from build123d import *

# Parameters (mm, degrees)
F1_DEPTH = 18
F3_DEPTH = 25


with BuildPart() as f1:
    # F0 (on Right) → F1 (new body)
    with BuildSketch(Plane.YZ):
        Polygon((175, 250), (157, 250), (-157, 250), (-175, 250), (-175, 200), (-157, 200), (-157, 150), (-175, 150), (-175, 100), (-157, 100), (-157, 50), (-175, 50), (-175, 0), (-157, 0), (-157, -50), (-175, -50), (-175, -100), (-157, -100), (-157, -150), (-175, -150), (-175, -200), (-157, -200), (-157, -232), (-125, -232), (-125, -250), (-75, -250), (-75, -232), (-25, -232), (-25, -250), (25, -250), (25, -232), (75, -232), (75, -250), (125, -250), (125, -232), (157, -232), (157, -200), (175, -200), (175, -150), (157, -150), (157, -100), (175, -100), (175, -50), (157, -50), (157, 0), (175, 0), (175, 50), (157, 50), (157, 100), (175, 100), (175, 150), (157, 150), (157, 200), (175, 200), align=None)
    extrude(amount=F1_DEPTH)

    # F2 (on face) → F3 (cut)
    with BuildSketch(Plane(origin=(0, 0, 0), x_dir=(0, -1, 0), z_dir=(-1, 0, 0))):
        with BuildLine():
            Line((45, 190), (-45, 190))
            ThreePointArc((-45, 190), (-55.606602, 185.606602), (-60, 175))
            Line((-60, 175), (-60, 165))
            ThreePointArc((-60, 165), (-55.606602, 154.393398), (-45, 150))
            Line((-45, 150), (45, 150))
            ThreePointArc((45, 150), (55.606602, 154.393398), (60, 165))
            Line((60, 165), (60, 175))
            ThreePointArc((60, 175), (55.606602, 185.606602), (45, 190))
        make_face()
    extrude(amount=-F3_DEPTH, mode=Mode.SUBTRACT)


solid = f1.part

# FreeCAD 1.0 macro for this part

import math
import FreeCAD as App
import Part
import Sketcher

V = App.Vector


def add_polygon(sketch, points):
    """Adds a closed chain of lines whose ends are joined by coincident constraints."""
    first, n = sketch.GeometryCount, len(points)
    for a, b in zip(points, points[1:] + points[:1]):
        sketch.addGeometry(Part.LineSegment(App.Vector(*a, 0), App.Vector(*b, 0)), False)
    for i in range(n):
        sketch.addConstraint(Sketcher.Constraint("Coincident", first + i, 2, first + (i + 1) % n, 1))

doc = App.newDocument("Part")
body = doc.addObject("PartDesign::Body", "Body")

sketch1 = body.newObject("Sketcher::SketchObject", "Sketch")
sketch1.AttachmentSupport = (doc.getObject("YZ_Plane"), [""])
sketch1.MapMode = "FlatFace"
add_polygon(sketch1, [(175, 250), (-175, 250), (-175, 200), (-157, 200), (-157, 150), (-175, 150), (-175, 100), (-157, 100), (-157, 50), (-175, 50), (-175, 0), (-157, 0), (-157, -50), (-175, -50), (-175, -100), (-157, -100), (-157, -150), (-175, -150), (-175, -200), (-157, -200), (-157, -232), (-125, -232), (-125, -250), (-75, -250), (-75, -232), (-25, -232), (-25, -250), (25, -250), (25, -232), (75, -232), (75, -250), (125, -250), (125, -232), (157, -232), (157, -200), (175, -200), (175, -150), (157, -150), (157, -100), (175, -100), (175, -50), (157, -50), (157, 0), (175, 0), (175, 50), (157, 50), (157, 100), (175, 100), (175, 150), (157, 150), (157, 200), (175, 200)])
sketch1.addConstraint([
    Sketcher.Constraint("Horizontal", 0),
    Sketcher.Constraint("Vertical", 1),
    Sketcher.Constraint("Horizontal", 2),
    Sketcher.Constraint("Vertical", 3),
    Sketcher.Constraint("Horizontal", 4),
    Sketcher.Constraint("Vertical", 5),
    Sketcher.Constraint("Horizontal", 6),
    Sketcher.Constraint("Vertical", 7),
    Sketcher.Constraint("Horizontal", 8),
    Sketcher.Constraint("Vertical", 9),
    Sketcher.Constraint("Horizontal", 10),
    Sketcher.Constraint("Vertical", 11),
    Sketcher.Constraint("Horizontal", 12),
    Sketcher.Constraint("Vertical", 13),
    Sketcher.Constraint("Horizontal", 14),
    Sketcher.Constraint("Vertical", 15),
    Sketcher.Constraint("Horizontal", 16),
    Sketcher.Constraint("Vertical", 17),
    Sketcher.Constraint("Horizontal", 18),
    Sketcher.Constraint("Vertical", 19),
    Sketcher.Constraint("Horizontal", 20),
    Sketcher.Constraint("Vertical", 21),
    Sketcher.Constraint("Horizontal", 22),
    Sketcher.Constraint("Vertical", 23),
    Sketcher.Constraint("Horizontal", 24),
    Sketcher.Constraint("Vertical", 25),
    Sketcher.Constraint("Horizontal", 26),
    Sketcher.Constraint("Vertical", 27),
    Sketcher.Constraint("Horizontal", 28),
    Sketcher.Constraint("Vertical", 29),
    Sketcher.Constraint("Horizontal", 30),
    Sketcher.Constraint("Vertical", 31),
    Sketcher.Constraint("Horizontal", 32),
    Sketcher.Constraint("Vertical", 33),
    Sketcher.Constraint("Horizontal", 34),
    Sketcher.Constraint("Vertical", 35),
    Sketcher.Constraint("Horizontal", 36),
    Sketcher.Constraint("Vertical", 37),
    Sketcher.Constraint("Horizontal", 38),
    Sketcher.Constraint("Vertical", 39),
    Sketcher.Constraint("Horizontal", 40),
    Sketcher.Constraint("Vertical", 41),
    Sketcher.Constraint("Horizontal", 42),
    Sketcher.Constraint("Vertical", 43),
    Sketcher.Constraint("Horizontal", 44),
    Sketcher.Constraint("Vertical", 45),
    Sketcher.Constraint("Horizontal", 46),
    Sketcher.Constraint("Vertical", 47),
    Sketcher.Constraint("Horizontal", 48),
    Sketcher.Constraint("Vertical", 49),
    Sketcher.Constraint("Horizontal", 50),
    Sketcher.Constraint("Vertical", 51),
    Sketcher.Constraint("Symmetric", 2, 2, 33, 2, -1, 1),
    Sketcher.Constraint("Symmetric", 4, 2, 35, 2, -1, 1),
    Sketcher.Constraint("Symmetric", 6, 2, 37, 2, -1, 1),
    Sketcher.Constraint("Symmetric", 8, 2, 39, 2, -1, 1),
    Sketcher.Constraint("Symmetric", 10, 2, 41, 2, -1, 1),
    Sketcher.Constraint("Symmetric", 12, 2, 43, 2, -1, 1),
    Sketcher.Constraint("Symmetric", 14, 2, 45, 2, -1, 1),
    Sketcher.Constraint("Symmetric", 16, 2, 47, 2, -1, 1),
    Sketcher.Constraint("Symmetric", 18, 2, 49, 2, -1, 1),
    Sketcher.Constraint("Symmetric", 24, 2, 27, 2, -2),
    Sketcher.Constraint("Symmetric", 22, 2, 29, 2, -2),
    Sketcher.Constraint("Symmetric", 20, 2, 31, 2, -2),
    Sketcher.Constraint("Symmetric", 18, 2, 33, 2, -2),
    Sketcher.Constraint("Symmetric", 16, 2, 35, 2, -2),
    Sketcher.Constraint("Symmetric", 14, 2, 37, 2, -2),
    Sketcher.Constraint("Symmetric", 12, 2, 39, 2, -2),
    Sketcher.Constraint("PointOnObject", 9, 2, -1),
    Sketcher.Constraint("Horizontal", 20, 2, 23, 2),
    Sketcher.Constraint("Horizontal", 22, 2, 25, 2),
    Sketcher.Constraint("Vertical", 1, 2, 4, 2),
    Sketcher.Constraint("Vertical", 3, 2, 6, 2),
    Sketcher.Constraint("Vertical", 5, 2, 8, 2),
    Sketcher.Constraint("Vertical", 7, 2, 10, 2),
    Sketcher.Constraint("Vertical", 47, 2, 50, 2),
    Sketcher.Constraint("Equal", 22, 24),
    Sketcher.Constraint("Equal", 24, 26),
    Sketcher.Constraint("Equal", 30, 1),
    Sketcher.Constraint("Equal", 1, 3),
    Sketcher.Constraint("Equal", 3, 5),
    Sketcher.Constraint("Equal", 5, 7),
    Sketcher.Constraint("Equal", 7, 9),
    Sketcher.Constraint("Equal", 32, 19),
    Sketcher.Constraint("Equal", 50, 21),
    Sketcher.Constraint("DistanceX", 0, 2, 0, 1, 350.0),
    Sketcher.Constraint("DistanceX", 2, 1, 2, 2, 18.0),
    Sketcher.Constraint("DistanceX", 20, 1, 20, 2, 32.0),
])
pad1 = body.newObject("PartDesign::Pad", "Pad")
pad1.Profile = sketch1
pad1.Length = 18

sketch2 = body.newObject("Sketcher::SketchObject", "Sketch001")
sketch2.AttachmentSupport = (doc.getObject("YZ_Plane"), [""])
sketch2.MapMode = "FlatFace"
sketch2.addGeometry([
    Part.LineSegment(V(-45, 190, 0), V(45, 190, 0)),
    Part.ArcOfCircle(Part.Circle(V(45, 175, 0), V(0, 0, 1), 15), math.radians(0), math.radians(90)),
    Part.LineSegment(V(60, 175, 0), V(60, 165, 0)),
    Part.ArcOfCircle(Part.Circle(V(45, 165, 0), V(0, 0, 1), 15), math.radians(-90), math.radians(0)),
    Part.LineSegment(V(45, 150, 0), V(-45, 150, 0)),
    Part.ArcOfCircle(Part.Circle(V(-45, 165, 0), V(0, 0, 1), 15), math.radians(180), math.radians(270)),
    Part.LineSegment(V(-60, 165, 0), V(-60, 175, 0)),
    Part.ArcOfCircle(Part.Circle(V(-45, 175, 0), V(0, 0, 1), 15), math.radians(90), math.radians(180)),
], False)
sketch2.addConstraint([
    Sketcher.Constraint("Tangent", 0, 2, 1, 2),
    Sketcher.Constraint("Tangent", 1, 1, 2, 1),
    Sketcher.Constraint("Tangent", 2, 2, 3, 2),
    Sketcher.Constraint("Tangent", 3, 1, 4, 1),
    Sketcher.Constraint("Tangent", 4, 2, 5, 2),
    Sketcher.Constraint("Tangent", 5, 1, 6, 1),
    Sketcher.Constraint("Tangent", 6, 2, 7, 2),
    Sketcher.Constraint("Tangent", 7, 1, 0, 1),
    Sketcher.Constraint("Horizontal", 0),
    Sketcher.Constraint("Vertical", 2),
    Sketcher.Constraint("Horizontal", 4),
    Sketcher.Constraint("Vertical", 6),
    Sketcher.Constraint("Equal", 1, 3),
    Sketcher.Constraint("Equal", 3, 5),
    Sketcher.Constraint("Equal", 5, 7),
    Sketcher.Constraint("Radius", 1, 14.999999),
    Sketcher.Constraint("DistanceX", 0, 1, 0, 2, 90.0),
    Sketcher.Constraint("DistanceY", 2, 2, 2, 1, 10.0),
    Sketcher.Constraint("DistanceX", -1, 1, 1, 3, 45.000001),
    Sketcher.Constraint("DistanceY", -1, 1, 1, 3, 175.000001),
])
pocket1 = body.newObject("PartDesign::Pocket", "Pocket")
pocket1.Profile = sketch2
pocket1.Length = 25
pocket1.Reversed = True

doc.recompute()
